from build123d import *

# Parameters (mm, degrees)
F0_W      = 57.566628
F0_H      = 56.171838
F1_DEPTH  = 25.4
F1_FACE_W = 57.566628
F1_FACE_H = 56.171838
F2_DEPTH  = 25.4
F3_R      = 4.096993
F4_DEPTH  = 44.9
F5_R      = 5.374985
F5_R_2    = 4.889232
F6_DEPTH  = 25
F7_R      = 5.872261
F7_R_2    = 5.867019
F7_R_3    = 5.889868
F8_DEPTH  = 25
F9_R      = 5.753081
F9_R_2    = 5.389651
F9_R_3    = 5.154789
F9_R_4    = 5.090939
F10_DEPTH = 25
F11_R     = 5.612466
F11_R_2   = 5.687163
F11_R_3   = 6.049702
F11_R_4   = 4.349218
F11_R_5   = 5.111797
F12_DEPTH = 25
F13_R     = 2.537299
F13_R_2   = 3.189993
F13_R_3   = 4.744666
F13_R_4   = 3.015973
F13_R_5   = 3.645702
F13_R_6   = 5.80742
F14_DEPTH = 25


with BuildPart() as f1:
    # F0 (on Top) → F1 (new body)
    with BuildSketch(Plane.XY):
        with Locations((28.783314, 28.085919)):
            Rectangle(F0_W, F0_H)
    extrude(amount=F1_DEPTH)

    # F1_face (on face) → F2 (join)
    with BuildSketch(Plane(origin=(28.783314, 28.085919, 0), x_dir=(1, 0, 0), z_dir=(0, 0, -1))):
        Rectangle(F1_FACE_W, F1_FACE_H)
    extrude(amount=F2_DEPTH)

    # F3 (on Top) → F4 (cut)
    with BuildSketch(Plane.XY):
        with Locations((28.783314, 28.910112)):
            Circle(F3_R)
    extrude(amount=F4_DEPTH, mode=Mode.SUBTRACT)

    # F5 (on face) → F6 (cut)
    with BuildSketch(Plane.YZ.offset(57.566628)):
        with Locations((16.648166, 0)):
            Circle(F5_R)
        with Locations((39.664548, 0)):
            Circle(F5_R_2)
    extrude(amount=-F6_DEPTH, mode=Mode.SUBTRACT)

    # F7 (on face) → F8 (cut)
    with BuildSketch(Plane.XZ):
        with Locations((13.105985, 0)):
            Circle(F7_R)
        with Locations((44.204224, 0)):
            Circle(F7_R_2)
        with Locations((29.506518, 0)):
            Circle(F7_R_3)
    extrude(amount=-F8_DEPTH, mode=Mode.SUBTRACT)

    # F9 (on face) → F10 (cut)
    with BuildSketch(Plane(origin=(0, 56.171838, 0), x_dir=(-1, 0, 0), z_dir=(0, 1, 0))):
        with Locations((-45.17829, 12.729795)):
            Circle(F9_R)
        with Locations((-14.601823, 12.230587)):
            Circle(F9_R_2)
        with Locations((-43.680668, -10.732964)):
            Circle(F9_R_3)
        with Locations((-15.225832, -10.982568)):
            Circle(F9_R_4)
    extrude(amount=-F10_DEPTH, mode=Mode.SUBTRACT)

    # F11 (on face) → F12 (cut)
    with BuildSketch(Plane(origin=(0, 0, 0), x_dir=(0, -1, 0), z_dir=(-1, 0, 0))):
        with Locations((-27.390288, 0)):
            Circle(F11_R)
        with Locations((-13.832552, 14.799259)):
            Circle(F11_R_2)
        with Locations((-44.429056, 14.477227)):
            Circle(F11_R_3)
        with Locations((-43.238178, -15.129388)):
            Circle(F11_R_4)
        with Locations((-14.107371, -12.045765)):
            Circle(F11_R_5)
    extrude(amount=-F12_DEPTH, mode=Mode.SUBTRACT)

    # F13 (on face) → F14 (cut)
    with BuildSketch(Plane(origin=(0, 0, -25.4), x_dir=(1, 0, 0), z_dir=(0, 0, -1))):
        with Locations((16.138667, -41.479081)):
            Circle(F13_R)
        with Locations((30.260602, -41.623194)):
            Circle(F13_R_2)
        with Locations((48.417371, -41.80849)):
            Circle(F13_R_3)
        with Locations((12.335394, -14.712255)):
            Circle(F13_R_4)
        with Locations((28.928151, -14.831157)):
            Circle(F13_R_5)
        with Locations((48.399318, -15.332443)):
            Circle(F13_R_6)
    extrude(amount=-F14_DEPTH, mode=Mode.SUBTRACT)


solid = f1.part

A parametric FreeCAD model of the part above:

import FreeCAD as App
import Part
import Sketcher

V = App.Vector
Q = App.Units.Quantity


def add_polygon(sketch, points):
    """Adds a closed chain of lines whose ends are joined by coincident constraints."""
    first, n = sketch.GeometryCount, len(points)
    for a, b in zip(points, points[1:] + points[:1]):
        sketch.addGeometry(Part.LineSegment(App.Vector(*a, 0), App.Vector(*b, 0)), False)
    for i in range(n):
        sketch.addConstraint(Sketcher.Constraint("Coincident", first + i, 2, first + (i + 1) % n, 1))

doc = App.newDocument("Part")
body = doc.addObject("PartDesign::Body", "Body")

# Sketch on XY plane
sketch1 = body.newObject("Sketcher::SketchObject", "Sketch")
sketch1.AttachmentSupport = (doc.getObject("XY_Plane"), [""])
sketch1.MapMode = "FlatFace"
add_polygon(sketch1, [(0, 56), (0, 0), (58, 0), (58, 56)])  # lines 0-3
sketch1.addConstraint(Sketcher.Constraint("Vertical", 0))
sketch1.addConstraint(Sketcher.Constraint("Horizontal", 1))
sketch1.addConstraint(Sketcher.Constraint("Vertical", 2))
sketch1.addConstraint(Sketcher.Constraint("Horizontal", 3))
sketch1.addConstraint(Sketcher.Constraint("Coincident", 0, 2, -1, 1))
sketch1.addConstraint(Sketcher.Constraint("DistanceX", 1, 1, 1, 2, Q("57.566628 mm")))
sketch1.addConstraint(Sketcher.Constraint("DistanceY", 0, 2, 0, 1, Q("56.171838 mm")))
pad1 = body.newObject("PartDesign::Pad", "Pad")
pad1.Profile = sketch1
pad1.Length = 25.4

# Sketch on XY plane
sketch2 = body.newObject("Sketcher::SketchObject", "Sketch001")
sketch2.AttachmentSupport = (doc.getObject("XY_Plane"), [""])
sketch2.MapMode = "FlatFace"
add_polygon(sketch2, [(0, 0), (0, 56), (58, 56), (58, 0)])  # lines 0-3
sketch2.addConstraint(Sketcher.Constraint("Vertical", 0))
sketch2.addConstraint(Sketcher.Constraint("Horizontal", 1))
sketch2.addConstraint(Sketcher.Constraint("Vertical", 2))
sketch2.addConstraint(Sketcher.Constraint("Horizontal", 3))
sketch2.addConstraint(Sketcher.Constraint("Coincident", 3, 2, -1, 1))
sketch2.addConstraint(Sketcher.Constraint("DistanceX", 1, 1, 1, 2, Q("57.566628 mm")))
sketch2.addConstraint(Sketcher.Constraint("DistanceY", 0, 1, 0, 2, Q("56.171838 mm")))
pad2 = body.newObject("PartDesign::Pad", "Pad001")
pad2.Profile = sketch2
pad2.Length = 25.4
pad2.Reversed = True

# Sketch on XY plane
sketch3 = body.newObject("Sketcher::SketchObject", "Sketch002")
sketch3.AttachmentSupport = (doc.getObject("XY_Plane"), [""])
sketch3.MapMode = "FlatFace"
sketch3.addGeometry(Part.Circle(V(28.8, 28.9, 0), V(0, 0, 1), 4.1), False)
sketch3.addConstraint(Sketcher.Constraint("Diameter", 0, Q("8.193986 mm")))
sketch3.addConstraint(Sketcher.Constraint("DistanceX", -1, 1, 0, 3, Q("28.783314 mm")))
sketch3.addConstraint(Sketcher.Constraint("DistanceY", -1, 1, 0, 3, Q("28.910112 mm")))
pocket1 = body.newObject("PartDesign::Pocket", "Pocket")
pocket1.Profile = sketch3
pocket1.Length = 44.9
pocket1.Reversed = True

# Sketch on YZ plane
sketch4 = body.newObject("Sketcher::SketchObject", "Sketch003")
sketch4.AttachmentSupport = (doc.getObject("YZ_Plane"), [""])
sketch4.MapMode = "FlatFace"
sketch4.AttachmentOffset = App.Placement(V(0, 0, 57.566628), App.Rotation())
sketch4.addGeometry(Part.Circle(V(16.6, 0, 0), V(0, 0, 1), 5.4), False)
sketch4.addGeometry(Part.Circle(V(39.7, 0, 0), V(0, 0, 1), 4.9), False)
sketch4.addConstraint(Sketcher.Constraint("PointOnObject", 0, 3, -1))
sketch4.addConstraint(Sketcher.Constraint("PointOnObject", 1, 3, -1))
sketch4.addConstraint(Sketcher.Constraint("Diameter", 0, Q("10.74997 mm")))
sketch4.addConstraint(Sketcher.Constraint("Diameter", 1, Q("9.778464 mm")))
sketch4.addConstraint(Sketcher.Constraint("DistanceX", -1, 1, 1, 3, Q("39.664548 mm")))
sketch4.addConstraint(Sketcher.Constraint("DistanceX", -1, 1, 0, 3, Q("16.648166 mm")))
pocket2 = body.newObject("PartDesign::Pocket", "Pocket001")
pocket2.Profile = sketch4
pocket2.Length = 25

# Sketch on XZ plane
sketch5 = body.newObject("Sketcher::SketchObject", "Sketch004")
sketch5.AttachmentSupport = (doc.getObject("XZ_Plane"), [""])
sketch5.MapMode = "FlatFace"
sketch5.addGeometry(Part.Circle(V(13, 0, 0), V(0, 0, 1), 6), False)
sketch5.addGeometry(Part.Circle(V(44, 0, 0), V(0, 0, 1), 6), False)
sketch5.addGeometry(Part.Circle(V(30, 0, 0), V(0, 0, 1), 6), False)
sketch5.addConstraint(Sketcher.Constraint("PointOnObject", 0, 3, -1))
sketch5.addConstraint(Sketcher.Constraint("PointOnObject", 1, 3, -1))
sketch5.addConstraint(Sketcher.Constraint("PointOnObject", 2, 3, -1))
sketch5.addConstraint(Sketcher.Constraint("Diameter", 0, Q("11.744522 mm")))
sketch5.addConstraint(Sketcher.Constraint("Diameter", 1, Q("11.734038 mm")))
sketch5.addConstraint(Sketcher.Constraint("Diameter", 2, Q("11.779736 mm")))
sketch5.addConstraint(Sketcher.Constraint("DistanceX", -1, 1, 2, 3, Q("29.506518 mm")))
sketch5.addConstraint(Sketcher.Constraint("DistanceX", 0, 3, 1, 3, Q("31.098239 mm")))
sketch5.addConstraint(Sketcher.Constraint("DistanceX", -1, 1, 0, 3, Q("13.105985 mm")))
pocket3 = body.newObject("PartDesign::Pocket", "Pocket002")
pocket3.Profile = sketch5
pocket3.Length = 25

# Sketch on XZ plane
sketch6 = body.newObject("Sketcher::SketchObject", "Sketch005")
sketch6.AttachmentSupport = (doc.getObject("XZ_Plane"), [""])
sketch6.MapMode = "FlatFace"
sketch6.AttachmentOffset = App.Placement(V(0, 0, -56.171838), App.Rotation())
sketch6.addGeometry(Part.Circle(V(45, 13, 0), V(0, 0, 1), 6), False)
sketch6.addGeometry(Part.Circle(V(15, 12, 0), V(0, 0, 1), 5), False)
sketch6.addGeometry(Part.Circle(V(44, -11, 0), V(0, 0, 1), 5), False)
sketch6.addGeometry(Part.Circle(V(15, -11, 0), V(0, 0, 1), 5), False)
sketch6.addConstraint(Sketcher.Constraint("Diameter", 0, Q("11.506162 mm")))
sketch6.addConstraint(Sketcher.Constraint("Diameter", 1, Q("10.779302 mm")))
sketch6.addConstraint(Sketcher.Constraint("Diameter", 2, Q("10.309578 mm")))
sketch6.addConstraint(Sketcher.Constraint("Diameter", 3, Q("10.181878 mm")))
sketch6.addConstraint(Sketcher.Constraint("DistanceX", -1, 1, 0, 3, Q("45.17829 mm")))
sketch6.addConstraint(Sketcher.Constraint("DistanceX", 2, 3, 0, 3, Q("1.497622 mm")))
sketch6.addConstraint(Sketcher.Constraint("DistanceY", 2, 3, 0, 3, Q("23.462759 mm")))
sketch6.addConstraint(Sketcher.Constraint("DistanceY", 2, 3, 1, 3, Q("22.963551 mm")))
sketch6.addConstraint(Sketcher.Constraint("DistanceX", 1, 3, 3, 3, Q("0.624009 mm")))
sketch6.addConstraint(Sketcher.Constraint("DistanceY", -1, 1, 0, 3, Q("12.729795 mm")))
sketch6.addConstraint(Sketcher.Constraint("DistanceX", -1, 1, 1, 3, Q("14.601823 mm")))
sketch6.addConstraint(Sketcher.Constraint("DistanceY", 3, 3, -1, 1, Q("10.982568 mm")))
pocket4 = body.newObject("PartDesign::Pocket", "Pocket003")
pocket4.Profile = sketch6
pocket4.Length = 25
pocket4.Reversed = True

# Sketch on YZ plane
sketch7 = body.newObject("Sketcher::SketchObject", "Sketch006")
sketch7.AttachmentSupport = (doc.getObject("YZ_Plane"), [""])
sketch7.MapMode = "FlatFace"
sketch7.addGeometry(Part.Circle(V(27.4, 0, 0), V(0, 0, 1), 5.6), False)
sketch7.addGeometry(Part.Circle(V(13.8, 14.8, 0), V(0, 0, 1), 5.7), False)
sketch7.addGeometry(Part.Circle(V(44.4, 14.5, 0), V(0, 0, 1), 6), False)
sketch7.addGeometry(Part.Circle(V(43.2, -15.1, 0), V(0, 0, 1), 4.3), False)
sketch7.addGeometry(Part.Circle(V(14.1, -12, 0), V(0, 0, 1), 5.1), False)
sketch7.addConstraint(Sketcher.Constraint("PointOnObject", 0, 3, -1))
sketch7.addConstraint(Sketcher.Constraint("Diameter", 0, Q("11.224932 mm")))
sketch7.addConstraint(Sketcher.Constraint("Diameter", 1, Q("11.374326 mm")))
sketch7.addConstraint(Sketcher.Constraint("Diameter", 2, Q("12.099404 mm")))
sketch7.addConstraint(Sketcher.Constraint("Diameter", 3, Q("8.698436 mm")))
sketch7.addConstraint(Sketcher.Constraint("Diameter", 4, Q("10.223594 mm")))
sketch7.addConstraint(Sketcher.Constraint("DistanceX", -1, 1, 0, 3, Q("27.390288 mm")))
sketch7.addConstraint(Sketcher.Constraint("DistanceY", -1, 1, 1, 3, Q("14.799259 mm")))
sketch7.addConstraint(Sketcher.Constraint("DistanceX", -1, 1, 4, 3, Q("14.107371 mm")))
sketch7.addConstraint(Sketcher.Constraint("DistanceX", 0, 3, 2, 3, Q("17.038768 mm")))
sketch7.addConstraint(Sketcher.Constraint("DistanceX", 0, 3, 3, 3, Q("15.84789 mm")))
sketch7.addConstraint(Sketcher.Constraint("DistanceX", 1, 3, 4, 3, Q("0.274819 mm")))
sketch7.addConstraint(Sketcher.Constraint("DistanceY", 4, 3, 2, 3, Q("26.522992 mm")))
sketch7.addConstraint(Sketcher.Constraint("DistanceY", -1, 1, 2, 3, Q("14.477227 mm")))
sketch7.addConstraint(Sketcher.Constraint("DistanceY", 3, 3, -1, 1, Q("15.129388 mm")))
pocket5 = body.newObject("PartDesign::Pocket", "Pocket004")
pocket5.Profile = sketch7
pocket5.Length = 25
pocket5.Reversed = True

# Sketch on XY plane
sketch8 = body.newObject("Sketcher::SketchObject", "Sketch007")
sketch8.AttachmentSupport = (doc.getObject("XY_Plane"), [""])
sketch8.MapMode = "FlatFace"
sketch8.AttachmentOffset = App.Placement(V(0, 0, -25.4), App.Rotation())
sketch8.addGeometry(Part.Circle(V(16.1, 41.5, 0), V(0, 0, 1), 2.5), False)
sketch8.addGeometry(Part.Circle(V(30.3, 41.6, 0), V(0, 0, 1), 3.2), False)
sketch8.addGeometry(Part.Circle(V(48.4, 41.8, 0), V(0, 0, 1), 4.7), False)
sketch8.addGeometry(Part.Circle(V(12.3, 14.7, 0), V(0, 0, 1), 3), False)
sketch8.addGeometry(Part.Circle(V(28.9, 14.8, 0), V(0, 0, 1), 3.6), False)
sketch8.addGeometry(Part.Circle(V(48.4, 15.3, 0), V(0, 0, 1), 5.8), False)
sketch8.addConstraint(Sketcher.Constraint("Diameter", 2, Q("9.489332 mm")))
sketch8.addConstraint(Sketcher.Constraint("Diameter", 5, Q("11.61484 mm")))
sketch8.addConstraint(Sketcher.Constraint("Diameter", 0, Q("5.074598 mm")))
sketch8.addConstraint(Sketcher.Constraint("Diameter", 1, Q("6.379986 mm")))
sketch8.addConstraint(Sketcher.Constraint("Diameter", 3, Q("6.031946 mm")))
sketch8.addConstraint(Sketcher.Constraint("Diameter", 4, Q("7.291404 mm")))
sketch8.addConstraint(Sketcher.Constraint("DistanceX", -1, 1, 1, 3, Q("30.260602 mm")))
sketch8.addConstraint(Sketcher.Constraint("DistanceY", 3, 3, 4, 3, Q("0.118902 mm")))
sketch8.addConstraint(Sketcher.Constraint("DistanceY", -1, 1, 0, 3, Q("41.479081 mm")))
sketch8.addConstraint(Sketcher.Constraint("DistanceX", -1, 1, 2, 3, Q("48.417371 mm")))
sketch8.addConstraint(Sketcher.Constraint("DistanceY", -1, 1, 2, 3, Q("41.80849 mm")))
sketch8.addConstraint(Sketcher.Constraint("DistanceX", -1, 1, 4, 3, Q("28.928151 mm")))
sketch8.addConstraint(Sketcher.Constraint("DistanceY", 3, 3, 1, 3, Q("26.910939 mm")))
sketch8.addConstraint(Sketcher.Constraint("DistanceY", 5, 3, 1, 3, Q("26.290751 mm")))
sketch8.addConstraint(Sketcher.Constraint("DistanceX", 0, 3, 5, 3, Q("32.260651 mm")))
sketch8.addConstraint(Sketcher.Constraint("DistanceY", 5, 3, 0, 3, Q("26.146638 mm")))
sketch8.addConstraint(Sketcher.Constraint("DistanceX", -1, 1, 0, 3, Q("16.138667 mm")))
sketch8.addConstraint(Sketcher.Constraint("DistanceX", -1, 1, 3, 3, Q("12.335394 mm")))
pocket6 = body.newObject("PartDesign::Pocket", "Pocket005")
pocket6.Profile = sketch8
pocket6.Length = 25
pocket6.Reversed = True

doc.recompute()
